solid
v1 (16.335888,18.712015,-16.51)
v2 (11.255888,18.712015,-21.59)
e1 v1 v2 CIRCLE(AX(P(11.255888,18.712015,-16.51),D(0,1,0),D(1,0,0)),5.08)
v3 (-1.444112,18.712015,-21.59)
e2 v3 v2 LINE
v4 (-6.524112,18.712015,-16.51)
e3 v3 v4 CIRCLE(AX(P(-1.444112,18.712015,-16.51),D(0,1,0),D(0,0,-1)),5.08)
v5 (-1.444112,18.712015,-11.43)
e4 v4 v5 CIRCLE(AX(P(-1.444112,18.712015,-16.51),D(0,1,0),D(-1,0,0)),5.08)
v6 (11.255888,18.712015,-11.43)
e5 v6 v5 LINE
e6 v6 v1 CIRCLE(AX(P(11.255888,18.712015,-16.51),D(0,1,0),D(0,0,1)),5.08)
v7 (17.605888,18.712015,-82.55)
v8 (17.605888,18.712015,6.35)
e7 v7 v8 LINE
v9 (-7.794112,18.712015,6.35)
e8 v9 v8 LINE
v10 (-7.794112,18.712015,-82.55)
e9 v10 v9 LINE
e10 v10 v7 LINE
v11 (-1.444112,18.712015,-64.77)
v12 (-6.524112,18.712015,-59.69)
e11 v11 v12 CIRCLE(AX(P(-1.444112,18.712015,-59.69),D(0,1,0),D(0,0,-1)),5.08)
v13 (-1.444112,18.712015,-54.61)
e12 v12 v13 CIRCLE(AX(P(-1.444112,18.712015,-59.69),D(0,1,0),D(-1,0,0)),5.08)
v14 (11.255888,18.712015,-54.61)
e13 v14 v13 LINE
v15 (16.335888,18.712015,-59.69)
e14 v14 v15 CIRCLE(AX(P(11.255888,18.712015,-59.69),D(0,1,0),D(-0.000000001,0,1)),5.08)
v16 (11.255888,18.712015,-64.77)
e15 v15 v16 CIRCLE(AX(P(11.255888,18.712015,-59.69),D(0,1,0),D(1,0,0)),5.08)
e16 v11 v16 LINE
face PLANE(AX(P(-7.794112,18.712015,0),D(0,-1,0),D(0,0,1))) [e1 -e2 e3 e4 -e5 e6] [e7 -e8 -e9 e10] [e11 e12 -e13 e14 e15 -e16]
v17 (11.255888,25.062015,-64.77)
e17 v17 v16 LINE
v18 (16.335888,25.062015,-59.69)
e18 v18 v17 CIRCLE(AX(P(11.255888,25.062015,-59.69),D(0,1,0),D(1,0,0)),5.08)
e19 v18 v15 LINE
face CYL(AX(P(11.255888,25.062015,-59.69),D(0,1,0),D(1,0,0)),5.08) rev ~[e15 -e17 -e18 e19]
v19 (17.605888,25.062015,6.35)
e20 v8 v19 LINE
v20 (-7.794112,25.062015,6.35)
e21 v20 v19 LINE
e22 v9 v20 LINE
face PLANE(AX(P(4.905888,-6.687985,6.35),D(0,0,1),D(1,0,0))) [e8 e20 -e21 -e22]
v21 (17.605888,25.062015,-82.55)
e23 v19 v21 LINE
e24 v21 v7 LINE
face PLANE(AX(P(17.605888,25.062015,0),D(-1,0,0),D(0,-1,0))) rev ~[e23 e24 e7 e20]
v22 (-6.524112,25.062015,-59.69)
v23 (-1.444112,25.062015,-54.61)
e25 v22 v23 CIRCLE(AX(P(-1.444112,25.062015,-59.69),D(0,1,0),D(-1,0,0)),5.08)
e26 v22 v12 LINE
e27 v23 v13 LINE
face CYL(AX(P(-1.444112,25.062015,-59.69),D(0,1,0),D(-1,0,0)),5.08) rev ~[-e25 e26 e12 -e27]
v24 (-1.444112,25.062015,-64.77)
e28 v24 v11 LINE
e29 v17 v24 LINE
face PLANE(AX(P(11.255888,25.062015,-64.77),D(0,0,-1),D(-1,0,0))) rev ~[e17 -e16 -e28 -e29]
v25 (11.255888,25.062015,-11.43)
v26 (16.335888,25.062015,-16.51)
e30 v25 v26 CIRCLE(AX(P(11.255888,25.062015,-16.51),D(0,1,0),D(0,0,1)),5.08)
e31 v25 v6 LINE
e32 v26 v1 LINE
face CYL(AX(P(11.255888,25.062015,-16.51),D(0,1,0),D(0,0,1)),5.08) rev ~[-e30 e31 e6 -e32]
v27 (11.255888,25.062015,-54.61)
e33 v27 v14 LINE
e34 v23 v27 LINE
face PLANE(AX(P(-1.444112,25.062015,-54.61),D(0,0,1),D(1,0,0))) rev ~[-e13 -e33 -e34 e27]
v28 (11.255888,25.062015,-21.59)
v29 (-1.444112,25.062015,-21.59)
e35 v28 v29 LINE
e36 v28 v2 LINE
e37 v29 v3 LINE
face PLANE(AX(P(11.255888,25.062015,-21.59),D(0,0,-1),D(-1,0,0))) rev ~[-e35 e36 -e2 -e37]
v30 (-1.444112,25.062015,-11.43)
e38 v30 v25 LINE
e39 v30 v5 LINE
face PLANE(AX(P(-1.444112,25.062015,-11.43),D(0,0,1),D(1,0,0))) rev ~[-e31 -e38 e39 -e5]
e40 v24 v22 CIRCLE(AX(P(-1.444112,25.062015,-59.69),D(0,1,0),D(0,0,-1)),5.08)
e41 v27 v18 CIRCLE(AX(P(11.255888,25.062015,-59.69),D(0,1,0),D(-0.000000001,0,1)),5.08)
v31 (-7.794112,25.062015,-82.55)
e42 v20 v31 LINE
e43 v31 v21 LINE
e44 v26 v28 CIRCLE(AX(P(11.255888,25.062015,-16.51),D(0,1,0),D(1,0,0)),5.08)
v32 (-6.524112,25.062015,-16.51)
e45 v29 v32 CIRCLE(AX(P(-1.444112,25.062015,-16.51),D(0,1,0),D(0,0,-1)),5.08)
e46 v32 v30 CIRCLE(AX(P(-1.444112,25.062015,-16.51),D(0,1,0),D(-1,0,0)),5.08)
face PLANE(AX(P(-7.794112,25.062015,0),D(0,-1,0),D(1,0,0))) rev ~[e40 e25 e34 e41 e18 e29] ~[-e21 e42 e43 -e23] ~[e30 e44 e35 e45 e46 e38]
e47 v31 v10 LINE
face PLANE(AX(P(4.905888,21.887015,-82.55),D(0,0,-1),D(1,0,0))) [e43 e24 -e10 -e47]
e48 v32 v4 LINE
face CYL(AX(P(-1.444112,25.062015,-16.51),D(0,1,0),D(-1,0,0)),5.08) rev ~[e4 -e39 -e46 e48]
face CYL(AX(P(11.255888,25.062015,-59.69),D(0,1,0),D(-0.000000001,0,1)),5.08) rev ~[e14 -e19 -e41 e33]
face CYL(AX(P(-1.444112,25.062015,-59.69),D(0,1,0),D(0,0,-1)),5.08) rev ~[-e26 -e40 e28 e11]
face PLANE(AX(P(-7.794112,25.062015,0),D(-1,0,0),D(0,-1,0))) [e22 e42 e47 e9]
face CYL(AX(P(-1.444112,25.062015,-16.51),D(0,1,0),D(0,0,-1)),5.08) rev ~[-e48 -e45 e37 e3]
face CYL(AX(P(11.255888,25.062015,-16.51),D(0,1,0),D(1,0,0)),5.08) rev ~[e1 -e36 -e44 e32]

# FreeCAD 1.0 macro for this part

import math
import FreeCAD as App
import Part
import Sketcher
Q = App.Units.Quantity

doc = App.newDocument("Part")
body = doc.addObject("PartDesign::Body", "Body")

# Sketch on XY plane
sketch1 = body.newObject("Sketcher::SketchObject", "Sketch")
sketch1.AttachmentSupport = (doc.getObject("XY_Plane"), [""])
sketch1.MapMode = "FlatFace"
sketch1.addGeometry([
    Part.LineSegment(App.Vector(-8, 25, 0), App.Vector(-8, -38, 0)),
    Part.LineSegment(App.Vector(-8, -38, 0), App.Vector(18, -38, 0)),
    Part.LineSegment(App.Vector(18, -38, 0), App.Vector(18, 25, 0)),
    Part.LineSegment(App.Vector(18, 25, 0), App.Vector(-8, 25, 0)),
], False)
sketch1.addConstraint([
    Sketcher.Constraint("Coincident", 0, 2, 1, 1),
    Sketcher.Constraint("Coincident", 1, 2, 2, 1),
    Sketcher.Constraint("Coincident", 2, 2, 3, 1),
    Sketcher.Constraint("Coincident", 3, 2, 0, 1),
    Sketcher.Constraint("Vertical", 0),
    Sketcher.Constraint("Horizontal", 1),
    Sketcher.Constraint("Vertical", 2),
    Sketcher.Constraint("Horizontal", 3),
    Sketcher.Constraint("DistanceX", 1, 1, 1, 2, Q("1 in")),
    Sketcher.Constraint("DistanceY", 0, 2, 0, 1, Q("2.5 in")),
    Sketcher.Constraint("DistanceX", 0, 2, -1, 1, 7.794112),
    Sketcher.Constraint("DistanceY", 0, 2, -1, 1, 38.437985),
])
pad1 = body.newObject("PartDesign::Pad", "Pad")
pad1.Profile = sketch1
pad1.Length = Q("0.25 in")

# Sketch on XY plane
sketch2 = body.newObject("Sketcher::SketchObject", "Sketch001")
sketch2.AttachmentSupport = (doc.getObject("XY_Plane"), [""])
sketch2.MapMode = "FlatFace"
sketch2.addGeometry([
    Part.LineSegment(App.Vector(-8, 19, 0), App.Vector(-8, 25, 0)),
    Part.LineSegment(App.Vector(-8, 25, 0), App.Vector(18, 25, 0)),
    Part.LineSegment(App.Vector(18, 25, 0), App.Vector(18, 19, 0)),
    Part.LineSegment(App.Vector(18, 19, 0), App.Vector(-8, 19, 0)),
], False)
sketch2.addConstraint([
    Sketcher.Constraint("Coincident", 0, 2, 1, 1),
    Sketcher.Constraint("Coincident", 1, 2, 2, 1),
    Sketcher.Constraint("Coincident", 2, 2, 3, 1),
    Sketcher.Constraint("Coincident", 3, 2, 0, 1),
    Sketcher.Constraint("Vertical", 0),
    Sketcher.Constraint("Horizontal", 1),
    Sketcher.Constraint("Vertical", 2),
    Sketcher.Constraint("Horizontal", 3),
    Sketcher.Constraint("DistanceX", 1, 1, 1, 2, Q("1 in")),
    Sketcher.Constraint("DistanceY", 0, 1, 0, 2, Q("0.25 in")),
    Sketcher.Constraint("DistanceX", 0, 2, -1, 1, 7.794112),
    Sketcher.Constraint("DistanceY", -1, 1, 0, 2, 25.062015),
])
pad2 = body.newObject("PartDesign::Pad", "Pad001")
pad2.Profile = sketch2
pad2.Length = Q("3.25 in")
pad2.Reversed = True

# Sketch on XZ plane
sketch3 = body.newObject("Sketcher::SketchObject", "Sketch002")
sketch3.AttachmentSupport = (doc.getObject("XZ_Plane"), [""])
sketch3.MapMode = "FlatFace"
sketch3.AttachmentOffset = App.Placement(App.Vector(0, 0, -25.062015), App.Rotation())
sketch3.addGeometry([
    Part.LineSegment(App.Vector(-1, -11, 0), App.Vector(11, -11, 0)),  # 0
    Part.ArcOfCircle(Part.Circle(App.Vector(11, -17, 0), App.Vector(0, 0, 1), 5), math.radians(0), math.radians(90)),  # 1
    Part.ArcOfCircle(Part.Circle(App.Vector(11, -17, 0), App.Vector(0, 0, 1), 5), math.radians(-90), math.radians(0)),  # 2
    Part.LineSegment(App.Vector(11, -22, 0), App.Vector(-1, -22, 0)),  # 3
    Part.ArcOfCircle(Part.Circle(App.Vector(-1, -17, 0), App.Vector(0, 0, 1), 5), math.radians(180), math.radians(270)),  # 4
    Part.ArcOfCircle(Part.Circle(App.Vector(-1, -17, 0), App.Vector(0, 0, 1), 5), math.radians(90), math.radians(180)),  # 5
    Part.ArcOfCircle(Part.Circle(App.Vector(11, -60, 0), App.Vector(0, 0, 1), 5), math.radians(0), math.radians(90)),  # 6
    Part.ArcOfCircle(Part.Circle(App.Vector(11, -60, 0), App.Vector(0, 0, 1), 5), math.radians(-90), math.radians(0)),  # 7
    Part.LineSegment(App.Vector(11, -65, 0), App.Vector(-1, -65, 0)),  # 8
    Part.ArcOfCircle(Part.Circle(App.Vector(-1, -60, 0), App.Vector(0, 0, 1), 5), math.radians(180), math.radians(270)),  # 9
    Part.ArcOfCircle(Part.Circle(App.Vector(-1, -60, 0), App.Vector(0, 0, 1), 5), math.radians(90), math.radians(180)),  # 10
    Part.LineSegment(App.Vector(-1, -55, 0), App.Vector(11, -55, 0)),  # 11
], False)
sketch3.addConstraint([
    Sketcher.Constraint("Tangent", 0, 2, 1, 2),
    Sketcher.Constraint("Tangent", 1, 1, 2, 2),
    Sketcher.Constraint("Tangent", 2, 1, 3, 1),
    Sketcher.Constraint("Tangent", 3, 2, 4, 2),
    Sketcher.Constraint("Tangent", 4, 1, 5, 2),
    Sketcher.Constraint("Tangent", 5, 1, 0, 1),
    Sketcher.Constraint("Tangent", 6, 1, 7, 2),
    Sketcher.Constraint("Tangent", 7, 1, 8, 1),
    Sketcher.Constraint("Tangent", 8, 2, 9, 2),
    Sketcher.Constraint("Tangent", 9, 1, 10, 2),
    Sketcher.Constraint("Tangent", 10, 1, 11, 1),
    Sketcher.Constraint("Tangent", 11, 2, 6, 2),
    Sketcher.Constraint("Horizontal", 0),
    Sketcher.Constraint("Horizontal", 3),
    Sketcher.Constraint("Horizontal", 8),
    Sketcher.Constraint("Horizontal", 11),
    Sketcher.Constraint("Equal", 1, 2),
    Sketcher.Constraint("Equal", 2, 4),
    Sketcher.Constraint("Equal", 5, 6),
    Sketcher.Constraint("Equal", 6, 7),
    Sketcher.Constraint("Equal", 7, 9),
    Sketcher.Constraint("Horizontal", 5, 3, 1, 1),
    Sketcher.Constraint("Horizontal", 1, 1, 4, 1),
    Sketcher.Constraint("Horizontal", 10, 3, 6, 1),
    Sketcher.Constraint("Horizontal", 6, 1, 9, 1),
    Sketcher.Constraint("Vertical", 2, 3, 6, 3),
    Sketcher.Constraint("Vertical", 5, 3, 9, 3),
    Sketcher.Constraint("Radius", 1, Q("0.2 in")),
    Sketcher.Constraint("DistanceX", 0, 1, 0, 2, Q("0.5 in")),
    Sketcher.Constraint("DistanceY", 6, 3, 1, 3, Q("1.7 in")),
    Sketcher.Constraint("DistanceY", 1, 3, -1, 1, Q("0.65 in")),
    Sketcher.Constraint("DistanceX", -1, 1, 1, 3, 11.255888),
])
pocket1 = body.newObject("PartDesign::Pocket", "Pocket")
pocket1.Profile = sketch3
pocket1.Length = Q("1 in")
pocket1.Reversed = True

# Sketch on YZ plane
sketch4 = body.newObject("Sketcher::SketchObject", "Sketch003")
sketch4.AttachmentSupport = (doc.getObject("YZ_Plane"), [""])
sketch4.MapMode = "FlatFace"
sketch4.AttachmentOffset = App.Placement(App.Vector(0, 0, -7.794112), App.Rotation())
sketch4.addGeometry([
    Part.LineSegment(App.Vector(19, 6, 0), App.Vector(19, 0, 0)),
    Part.LineSegment(App.Vector(19, 0, 0), App.Vector(-38, 0, 0)),
    Part.LineSegment(App.Vector(-38, 0, 0), App.Vector(-38, 6, 0)),
    Part.LineSegment(App.Vector(-38, 6, 0), App.Vector(19, 6, 0)),
], False)
sketch4.addConstraint([
    Sketcher.Constraint("Coincident", 0, 2, 1, 1),
    Sketcher.Constraint("Coincident", 1, 2, 2, 1),
    Sketcher.Constraint("Coincident", 2, 2, 3, 1),
    Sketcher.Constraint("Coincident", 3, 2, 0, 1),
    Sketcher.Constraint("Vertical", 0),
    Sketcher.Constraint("Horizontal", 1),
    Sketcher.Constraint("Vertical", 2),
    Sketcher.Constraint("Horizontal", 3),
    Sketcher.Constraint("PointOnObject", 0, 2, -1),
    Sketcher.Constraint("DistanceX", 1, 2, 1, 1, Q("2.25 in")),
    Sketcher.Constraint("DistanceY", 0, 2, 0, 1, Q("0.25 in")),
    Sketcher.Constraint("DistanceX", -1, 1, 0, 2, 18.712015),
])
pocket2 = body.newObject("PartDesign::Pocket", "Pocket001")
pocket2.Profile = sketch4
pocket2.Length = Q("1 in")
pocket2.Reversed = True

doc.recompute()
